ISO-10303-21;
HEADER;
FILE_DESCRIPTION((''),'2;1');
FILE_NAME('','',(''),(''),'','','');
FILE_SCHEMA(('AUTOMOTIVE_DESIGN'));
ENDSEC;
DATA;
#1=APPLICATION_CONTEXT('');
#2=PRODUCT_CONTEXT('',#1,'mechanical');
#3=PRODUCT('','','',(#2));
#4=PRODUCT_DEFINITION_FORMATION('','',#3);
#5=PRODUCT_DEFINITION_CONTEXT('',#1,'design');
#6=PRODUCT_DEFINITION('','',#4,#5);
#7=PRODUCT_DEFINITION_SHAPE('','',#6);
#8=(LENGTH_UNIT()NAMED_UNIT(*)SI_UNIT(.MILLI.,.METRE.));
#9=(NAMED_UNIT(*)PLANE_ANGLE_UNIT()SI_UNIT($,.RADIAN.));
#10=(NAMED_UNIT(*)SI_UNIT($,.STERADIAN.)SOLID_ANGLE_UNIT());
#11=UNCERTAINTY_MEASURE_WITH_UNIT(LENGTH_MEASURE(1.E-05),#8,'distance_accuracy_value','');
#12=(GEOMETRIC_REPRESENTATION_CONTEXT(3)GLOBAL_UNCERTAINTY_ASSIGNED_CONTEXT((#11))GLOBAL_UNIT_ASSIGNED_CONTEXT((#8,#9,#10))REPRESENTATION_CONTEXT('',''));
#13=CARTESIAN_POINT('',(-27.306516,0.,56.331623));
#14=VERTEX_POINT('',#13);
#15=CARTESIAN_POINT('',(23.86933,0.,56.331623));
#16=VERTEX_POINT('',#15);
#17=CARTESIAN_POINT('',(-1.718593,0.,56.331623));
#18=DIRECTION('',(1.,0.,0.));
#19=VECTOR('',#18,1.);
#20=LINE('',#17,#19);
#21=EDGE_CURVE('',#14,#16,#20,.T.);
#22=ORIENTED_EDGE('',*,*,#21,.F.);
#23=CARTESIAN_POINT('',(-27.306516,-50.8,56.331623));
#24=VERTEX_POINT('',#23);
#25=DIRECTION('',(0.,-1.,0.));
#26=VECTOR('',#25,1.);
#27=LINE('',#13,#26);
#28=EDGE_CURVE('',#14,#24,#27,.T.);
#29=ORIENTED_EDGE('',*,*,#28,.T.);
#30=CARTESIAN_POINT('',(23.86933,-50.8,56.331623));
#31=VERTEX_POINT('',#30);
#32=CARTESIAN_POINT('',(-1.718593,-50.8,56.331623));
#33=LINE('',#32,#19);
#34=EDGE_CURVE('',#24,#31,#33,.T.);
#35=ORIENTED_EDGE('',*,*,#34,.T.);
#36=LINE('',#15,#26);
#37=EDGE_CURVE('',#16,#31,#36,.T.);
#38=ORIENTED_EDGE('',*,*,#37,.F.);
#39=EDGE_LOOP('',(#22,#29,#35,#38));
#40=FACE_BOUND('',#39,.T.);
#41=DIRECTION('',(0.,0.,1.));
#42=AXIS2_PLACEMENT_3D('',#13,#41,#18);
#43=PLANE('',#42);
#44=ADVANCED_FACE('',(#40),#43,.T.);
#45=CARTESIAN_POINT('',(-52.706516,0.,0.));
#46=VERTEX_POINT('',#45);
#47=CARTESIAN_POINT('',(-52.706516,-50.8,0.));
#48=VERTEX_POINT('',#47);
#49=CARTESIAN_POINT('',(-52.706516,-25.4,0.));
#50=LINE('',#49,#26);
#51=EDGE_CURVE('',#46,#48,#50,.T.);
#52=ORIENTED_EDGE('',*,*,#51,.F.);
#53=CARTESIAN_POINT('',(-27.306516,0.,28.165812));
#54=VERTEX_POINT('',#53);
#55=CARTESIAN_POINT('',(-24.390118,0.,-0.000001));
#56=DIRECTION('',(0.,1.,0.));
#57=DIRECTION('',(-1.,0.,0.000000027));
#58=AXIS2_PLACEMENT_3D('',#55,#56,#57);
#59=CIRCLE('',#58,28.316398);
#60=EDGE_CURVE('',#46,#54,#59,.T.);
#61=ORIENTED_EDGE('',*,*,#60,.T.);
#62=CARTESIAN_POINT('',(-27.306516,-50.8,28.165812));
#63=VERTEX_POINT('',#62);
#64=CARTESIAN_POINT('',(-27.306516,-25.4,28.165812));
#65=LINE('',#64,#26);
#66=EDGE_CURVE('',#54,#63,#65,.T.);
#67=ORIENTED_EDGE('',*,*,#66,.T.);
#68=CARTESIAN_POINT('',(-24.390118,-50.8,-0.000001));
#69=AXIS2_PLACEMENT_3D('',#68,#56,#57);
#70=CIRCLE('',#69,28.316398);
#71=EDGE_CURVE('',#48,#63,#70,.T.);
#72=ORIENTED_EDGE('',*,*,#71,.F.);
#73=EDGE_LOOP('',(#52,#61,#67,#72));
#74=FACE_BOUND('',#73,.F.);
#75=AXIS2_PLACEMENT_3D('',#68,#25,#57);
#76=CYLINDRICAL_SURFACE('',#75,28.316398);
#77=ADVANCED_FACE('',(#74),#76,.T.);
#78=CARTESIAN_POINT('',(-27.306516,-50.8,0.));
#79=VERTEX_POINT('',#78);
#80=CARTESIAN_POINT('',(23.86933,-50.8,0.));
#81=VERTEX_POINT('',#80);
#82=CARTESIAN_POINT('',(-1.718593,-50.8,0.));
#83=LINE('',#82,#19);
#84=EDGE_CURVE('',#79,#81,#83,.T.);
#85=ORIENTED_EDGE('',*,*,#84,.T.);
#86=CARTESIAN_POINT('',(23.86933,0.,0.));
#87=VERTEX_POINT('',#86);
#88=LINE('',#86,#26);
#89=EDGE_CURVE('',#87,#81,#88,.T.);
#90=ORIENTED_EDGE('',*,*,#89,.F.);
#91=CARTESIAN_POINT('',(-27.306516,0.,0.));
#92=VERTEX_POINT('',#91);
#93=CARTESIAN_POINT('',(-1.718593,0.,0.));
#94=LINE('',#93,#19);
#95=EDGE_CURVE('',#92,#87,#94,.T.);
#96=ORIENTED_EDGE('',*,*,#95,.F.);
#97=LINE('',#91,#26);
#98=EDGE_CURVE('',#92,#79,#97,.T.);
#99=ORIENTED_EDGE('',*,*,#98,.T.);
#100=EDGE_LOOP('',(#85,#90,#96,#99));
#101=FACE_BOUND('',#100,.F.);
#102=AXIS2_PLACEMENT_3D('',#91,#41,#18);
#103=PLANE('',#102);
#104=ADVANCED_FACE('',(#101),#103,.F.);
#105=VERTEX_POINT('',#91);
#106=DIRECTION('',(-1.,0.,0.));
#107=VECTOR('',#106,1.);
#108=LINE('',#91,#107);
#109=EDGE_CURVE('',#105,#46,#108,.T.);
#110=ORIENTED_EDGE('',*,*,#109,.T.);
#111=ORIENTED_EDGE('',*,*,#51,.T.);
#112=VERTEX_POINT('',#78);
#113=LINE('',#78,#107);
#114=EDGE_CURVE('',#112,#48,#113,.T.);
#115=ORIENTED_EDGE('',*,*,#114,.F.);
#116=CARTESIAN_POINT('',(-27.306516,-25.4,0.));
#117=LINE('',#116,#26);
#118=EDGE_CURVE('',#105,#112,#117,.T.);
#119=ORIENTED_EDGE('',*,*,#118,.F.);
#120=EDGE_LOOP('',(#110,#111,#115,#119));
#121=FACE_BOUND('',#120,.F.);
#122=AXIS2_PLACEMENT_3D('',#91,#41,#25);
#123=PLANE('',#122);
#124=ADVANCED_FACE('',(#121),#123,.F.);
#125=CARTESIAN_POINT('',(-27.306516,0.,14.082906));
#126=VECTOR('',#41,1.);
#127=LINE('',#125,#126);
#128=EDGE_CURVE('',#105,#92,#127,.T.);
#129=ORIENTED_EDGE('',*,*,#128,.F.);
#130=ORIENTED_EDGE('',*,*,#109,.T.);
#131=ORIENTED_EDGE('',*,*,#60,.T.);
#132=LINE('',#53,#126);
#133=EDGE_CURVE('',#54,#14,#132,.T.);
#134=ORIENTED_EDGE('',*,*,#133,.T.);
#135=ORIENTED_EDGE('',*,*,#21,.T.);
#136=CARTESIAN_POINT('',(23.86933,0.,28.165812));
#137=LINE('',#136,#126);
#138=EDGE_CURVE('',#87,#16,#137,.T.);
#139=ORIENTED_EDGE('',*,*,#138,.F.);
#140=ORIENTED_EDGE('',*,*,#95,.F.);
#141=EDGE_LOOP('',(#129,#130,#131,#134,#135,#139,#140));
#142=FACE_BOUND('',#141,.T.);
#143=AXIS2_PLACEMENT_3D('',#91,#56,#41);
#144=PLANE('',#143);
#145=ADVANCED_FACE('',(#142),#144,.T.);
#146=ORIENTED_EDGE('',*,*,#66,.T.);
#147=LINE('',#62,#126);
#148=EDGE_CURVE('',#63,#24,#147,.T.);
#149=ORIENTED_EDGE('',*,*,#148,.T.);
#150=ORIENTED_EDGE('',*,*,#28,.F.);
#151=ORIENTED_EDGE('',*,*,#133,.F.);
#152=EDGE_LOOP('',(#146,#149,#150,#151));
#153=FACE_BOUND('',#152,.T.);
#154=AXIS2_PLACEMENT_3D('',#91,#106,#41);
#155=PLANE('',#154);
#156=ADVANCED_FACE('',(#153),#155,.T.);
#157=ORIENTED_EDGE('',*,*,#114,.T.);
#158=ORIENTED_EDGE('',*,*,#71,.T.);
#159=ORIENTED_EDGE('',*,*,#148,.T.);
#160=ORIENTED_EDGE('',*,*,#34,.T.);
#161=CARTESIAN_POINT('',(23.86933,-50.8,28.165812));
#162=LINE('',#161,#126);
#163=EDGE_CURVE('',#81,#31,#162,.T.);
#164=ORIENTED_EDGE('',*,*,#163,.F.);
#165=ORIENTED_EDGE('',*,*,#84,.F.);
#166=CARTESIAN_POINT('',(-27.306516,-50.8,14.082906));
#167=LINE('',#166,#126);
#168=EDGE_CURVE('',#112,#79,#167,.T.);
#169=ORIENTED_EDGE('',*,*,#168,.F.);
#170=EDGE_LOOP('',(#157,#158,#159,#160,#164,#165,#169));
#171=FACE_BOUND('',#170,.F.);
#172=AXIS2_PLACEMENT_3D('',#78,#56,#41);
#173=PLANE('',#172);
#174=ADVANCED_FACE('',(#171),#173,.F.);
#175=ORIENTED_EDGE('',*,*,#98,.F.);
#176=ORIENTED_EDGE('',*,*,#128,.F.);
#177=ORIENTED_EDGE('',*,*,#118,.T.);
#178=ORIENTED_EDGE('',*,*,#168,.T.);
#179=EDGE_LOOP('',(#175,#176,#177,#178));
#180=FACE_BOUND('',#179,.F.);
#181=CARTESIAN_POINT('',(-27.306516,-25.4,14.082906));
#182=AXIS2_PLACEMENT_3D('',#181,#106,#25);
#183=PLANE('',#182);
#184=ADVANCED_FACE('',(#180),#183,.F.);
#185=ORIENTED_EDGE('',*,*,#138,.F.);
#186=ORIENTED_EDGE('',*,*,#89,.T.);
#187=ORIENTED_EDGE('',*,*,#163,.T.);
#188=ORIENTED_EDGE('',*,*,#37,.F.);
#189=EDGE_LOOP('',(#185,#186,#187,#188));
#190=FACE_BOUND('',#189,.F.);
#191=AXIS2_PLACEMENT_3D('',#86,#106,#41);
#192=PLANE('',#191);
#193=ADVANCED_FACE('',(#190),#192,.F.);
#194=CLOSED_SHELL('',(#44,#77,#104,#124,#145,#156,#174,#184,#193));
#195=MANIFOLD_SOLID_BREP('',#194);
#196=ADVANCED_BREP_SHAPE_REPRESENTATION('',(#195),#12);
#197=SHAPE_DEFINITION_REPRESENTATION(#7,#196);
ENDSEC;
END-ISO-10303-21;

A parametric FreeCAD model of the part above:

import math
import FreeCAD as App
import Part
import Sketcher

V = App.Vector
Q = App.Units.Quantity


def add_polygon(sketch, points):
    """Adds a closed chain of lines whose ends are joined by coincident constraints."""
    first, n = sketch.GeometryCount, len(points)
    for a, b in zip(points, points[1:] + points[:1]):
        sketch.addGeometry(Part.LineSegment(App.Vector(*a, 0), App.Vector(*b, 0)), False)
    for i in range(n):
        sketch.addConstraint(Sketcher.Constraint("Coincident", first + i, 2, first + (i + 1) % n, 1))

doc = App.newDocument("Part")
body = doc.addObject("PartDesign::Body", "Body")

# Sketch on XZ plane
sketch1 = body.newObject("Sketcher::SketchObject", "Sketch")
sketch1.AttachmentSupport = (doc.getObject("XZ_Plane"), [""])
sketch1.MapMode = "FlatFace"
add_polygon(sketch1, [(-27, 56), (-27, 0), (24, 0), (24, 56)])  # lines 0-3
sketch1.addConstraint([
    Sketcher.Constraint("Vertical", 0),
    Sketcher.Constraint("Horizontal", 1),
    Sketcher.Constraint("Vertical", 2),
    Sketcher.Constraint("Horizontal", 3),
    Sketcher.Constraint("PointOnObject", 0, 2, -1),
    Sketcher.Constraint("DistanceX", 1, 1, 1, 2, 51.175846),
    Sketcher.Constraint("DistanceY", 0, 2, 0, 1, 56.331623),
    Sketcher.Constraint("DistanceX", -1, 1, 1, 2, 23.86933),
])
pad1 = body.newObject("PartDesign::Pad", "Pad")
pad1.Profile = sketch1
pad1.Length = Q("2 in")

# Sketch on YZ plane
sketch2 = body.newObject("Sketcher::SketchObject", "Sketch001")
sketch2.AttachmentSupport = (doc.getObject("YZ_Plane"), [""])
sketch2.MapMode = "FlatFace"
sketch2.AttachmentOffset = App.Placement(V(0, 0, -27.306516), App.Rotation())
add_polygon(sketch2, [(0, 28), (0, 0), (-51, 0), (-51, 28)])  # lines 0-3
sketch2.addConstraint([
    Sketcher.Constraint("Vertical", 0),
    Sketcher.Constraint("Horizontal", 1),
    Sketcher.Constraint("Vertical", 2),
    Sketcher.Constraint("Horizontal", 3),
    Sketcher.Constraint("Coincident", 0, 2, -1, 1),
    Sketcher.Constraint("DistanceX", 1, 2, 1, 1, Q("2 in")),
    Sketcher.Constraint("DistanceY", 0, 2, 0, 1, 28.165812),
])
pad2 = body.newObject("PartDesign::Pad", "Pad001")
pad2.Profile = sketch2
pad2.Length = Q("1 in")
pad2.Reversed = True

# Sketch on XZ plane
sketch3 = body.newObject("Sketcher::SketchObject", "Sketch002")
sketch3.AttachmentSupport = (doc.getObject("XZ_Plane"), [""])
sketch3.MapMode = "FlatFace"
sketch3.AttachmentOffset = App.Placement(V(0, 0, 2 * 25.4), App.Rotation())
sketch3.addGeometry([
    Part.ArcOfCircle(Part.Circle(V(-24, 0, 0), V(0, 0, 1), 28), math.radians(96), math.radians(180)),
    Part.LineSegment(V(-27, 28, 0), V(-53, 28, 0)),
    Part.LineSegment(V(-53, 28, 0), V(-53, 0, 0)),
], False)
sketch3.addConstraint([
    Sketcher.Constraint("Coincident", 0, 1, 1, 1),
    Sketcher.Constraint("Coincident", 1, 2, 2, 1),
    Sketcher.Constraint("Tangent", 2, 2, 0, 2),
    Sketcher.Constraint("Horizontal", 1),
    Sketcher.Constraint("Vertical", 2),
    Sketcher.Constraint("PointOnObject", 0, 3, -1),
    Sketcher.Constraint("DistanceX", 1, 2, 1, 1, Q("1 in")),
    Sketcher.Constraint("Radius", 0, 28.316398),
    Sketcher.Constraint("DistanceX", 0, 3, -1, 1, 24.390118),
])
pocket1 = body.newObject("PartDesign::Pocket", "Pocket")
pocket1.Profile = sketch3
pocket1.Length = Q("2 in")

doc.recompute()
